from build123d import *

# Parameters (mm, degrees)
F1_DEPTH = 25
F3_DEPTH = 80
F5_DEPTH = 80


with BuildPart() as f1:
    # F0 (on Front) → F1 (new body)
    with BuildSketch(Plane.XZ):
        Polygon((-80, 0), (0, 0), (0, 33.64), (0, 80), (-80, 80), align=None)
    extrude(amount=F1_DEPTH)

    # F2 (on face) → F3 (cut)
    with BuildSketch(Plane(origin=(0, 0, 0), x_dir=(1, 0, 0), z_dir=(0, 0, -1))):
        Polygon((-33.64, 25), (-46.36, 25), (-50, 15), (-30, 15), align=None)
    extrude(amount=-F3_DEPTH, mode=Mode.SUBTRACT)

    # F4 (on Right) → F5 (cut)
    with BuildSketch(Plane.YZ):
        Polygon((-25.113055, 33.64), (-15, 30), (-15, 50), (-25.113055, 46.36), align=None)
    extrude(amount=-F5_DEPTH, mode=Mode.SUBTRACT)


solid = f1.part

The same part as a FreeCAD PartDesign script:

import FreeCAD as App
import Part
import Sketcher
from FreeCAD import Vector
Q = App.Units.Quantity

doc = App.newDocument("Part")
body = doc.addObject("PartDesign::Body", "Body")

sketch1 = body.newObject("Sketcher::SketchObject", "Sketch")
sketch1.AttachmentSupport = (doc.getObject("XZ_Plane"), [""])
sketch1.MapMode = "FlatFace"
sketch1.addGeometry([
    Part.LineSegment(Vector(-80, 0, 0), Vector(0, 0, 0)),
    Part.LineSegment(Vector(0, 0, 0), Vector(0, 80, 0)),
    Part.LineSegment(Vector(0, 80, 0), Vector(-80, 80, 0)),
    Part.LineSegment(Vector(-80, 80, 0), Vector(-80, 0, 0)),
], False)
sketch1.addConstraint([
    Sketcher.Constraint("Coincident", 0, 2, 1, 1),
    Sketcher.Constraint("Coincident", 1, 2, 2, 1),
    Sketcher.Constraint("Coincident", 2, 2, 3, 1),
    Sketcher.Constraint("Coincident", 3, 2, 0, 1),
    Sketcher.Constraint("Horizontal", 0),
    Sketcher.Constraint("Vertical", 1),
    Sketcher.Constraint("Horizontal", 2),
    Sketcher.Constraint("Vertical", 3),
    Sketcher.Constraint("Coincident", 0, 2, -1, 1),
    Sketcher.Constraint("Equal", 2, 1),
    Sketcher.Constraint("DistanceX", 0, 1, 0, 2, Q("80 mm")),
])
pad1 = body.newObject("PartDesign::Pad", "Pad")
pad1.Profile = sketch1
pad1.Length = 25

sketch2 = body.newObject("Sketcher::SketchObject", "Sketch001")
sketch2.AttachmentSupport = (doc.getObject("XY_Plane"), [""])
sketch2.MapMode = "FlatFace"
sketch2.addGeometry([
    Part.LineSegment(Vector(-34, -25, 0), Vector(-46, -25, 0)),
    Part.LineSegment(Vector(-46, -25, 0), Vector(-50, -15, 0)),
    Part.LineSegment(Vector(-50, -15, 0), Vector(-30, -15, 0)),
    Part.LineSegment(Vector(-30, -15, 0), Vector(-34, -25, 0)),
], False)
sketch2.addConstraint([
    Sketcher.Constraint("Coincident", 0, 2, 1, 1),
    Sketcher.Constraint("Coincident", 1, 2, 2, 1),
    Sketcher.Constraint("Coincident", 2, 2, 3, 1),
    Sketcher.Constraint("Coincident", 3, 2, 0, 1),
    Sketcher.Constraint("Horizontal", 0),
    Sketcher.Constraint("Horizontal", 2),
    Sketcher.Constraint("Equal", 1, 3),
    Sketcher.Constraint("DistanceX", 2, 1, 2, 2, Q("20 mm")),
    Sketcher.Constraint("DistanceY", 0, 2, -1, 1, Q("25 mm")),
    Sketcher.Constraint("DistanceX", 1, 2, -1, 1, Q("50 mm")),
    Sketcher.Constraint("DistanceY", 1, 2, -1, 1, Q("15 mm")),
    Sketcher.Constraint("DistanceX", 0, 2, 0, 1, Q("12.72 mm")),
])
pocket1 = body.newObject("PartDesign::Pocket", "Pocket")
pocket1.Profile = sketch2
pocket1.Length = 80
pocket1.Reversed = True

sketch3 = body.newObject("Sketcher::SketchObject", "Sketch002")
sketch3.AttachmentSupport = (doc.getObject("YZ_Plane"), [""])
sketch3.MapMode = "FlatFace"
sketch3.addGeometry([
    Part.LineSegment(Vector(-25, 34, 0), Vector(-15, 30, 0)),
    Part.LineSegment(Vector(-15, 30, 0), Vector(-15, 50, 0)),
    Part.LineSegment(Vector(-15, 50, 0), Vector(-25, 46, 0)),
    Part.LineSegment(Vector(-25, 46, 0), Vector(-25, 34, 0)),
], False)
sketch3.addConstraint([
    Sketcher.Constraint("Coincident", 0, 2, 1, 1),
    Sketcher.Constraint("Coincident", 1, 2, 2, 1),
    Sketcher.Constraint("Coincident", 2, 2, 3, 1),
    Sketcher.Constraint("Coincident", 3, 2, 0, 1),
    Sketcher.Constraint("Vertical", 1),
    Sketcher.Constraint("Vertical", 3),
    Sketcher.Constraint("Equal", 0, 2),
    Sketcher.Constraint("DistanceY", 1, 1, 1, 2, Q("20 mm")),
    Sketcher.Constraint("DistanceX", 0, 2, -1, 1, Q("15 mm")),
    Sketcher.Constraint("DistanceY", -1, 1, 0, 2, Q("30 mm")),
    Sketcher.Constraint("DistanceY", 3, 2, 3, 1, Q("12.72 mm")),
    Sketcher.Constraint("Distance", 0, Q("10.748185 mm")),
])
pocket2 = body.newObject("PartDesign::Pocket", "Pocket001")
pocket2.Profile = sketch3
pocket2.Length = 80

doc.recompute()
